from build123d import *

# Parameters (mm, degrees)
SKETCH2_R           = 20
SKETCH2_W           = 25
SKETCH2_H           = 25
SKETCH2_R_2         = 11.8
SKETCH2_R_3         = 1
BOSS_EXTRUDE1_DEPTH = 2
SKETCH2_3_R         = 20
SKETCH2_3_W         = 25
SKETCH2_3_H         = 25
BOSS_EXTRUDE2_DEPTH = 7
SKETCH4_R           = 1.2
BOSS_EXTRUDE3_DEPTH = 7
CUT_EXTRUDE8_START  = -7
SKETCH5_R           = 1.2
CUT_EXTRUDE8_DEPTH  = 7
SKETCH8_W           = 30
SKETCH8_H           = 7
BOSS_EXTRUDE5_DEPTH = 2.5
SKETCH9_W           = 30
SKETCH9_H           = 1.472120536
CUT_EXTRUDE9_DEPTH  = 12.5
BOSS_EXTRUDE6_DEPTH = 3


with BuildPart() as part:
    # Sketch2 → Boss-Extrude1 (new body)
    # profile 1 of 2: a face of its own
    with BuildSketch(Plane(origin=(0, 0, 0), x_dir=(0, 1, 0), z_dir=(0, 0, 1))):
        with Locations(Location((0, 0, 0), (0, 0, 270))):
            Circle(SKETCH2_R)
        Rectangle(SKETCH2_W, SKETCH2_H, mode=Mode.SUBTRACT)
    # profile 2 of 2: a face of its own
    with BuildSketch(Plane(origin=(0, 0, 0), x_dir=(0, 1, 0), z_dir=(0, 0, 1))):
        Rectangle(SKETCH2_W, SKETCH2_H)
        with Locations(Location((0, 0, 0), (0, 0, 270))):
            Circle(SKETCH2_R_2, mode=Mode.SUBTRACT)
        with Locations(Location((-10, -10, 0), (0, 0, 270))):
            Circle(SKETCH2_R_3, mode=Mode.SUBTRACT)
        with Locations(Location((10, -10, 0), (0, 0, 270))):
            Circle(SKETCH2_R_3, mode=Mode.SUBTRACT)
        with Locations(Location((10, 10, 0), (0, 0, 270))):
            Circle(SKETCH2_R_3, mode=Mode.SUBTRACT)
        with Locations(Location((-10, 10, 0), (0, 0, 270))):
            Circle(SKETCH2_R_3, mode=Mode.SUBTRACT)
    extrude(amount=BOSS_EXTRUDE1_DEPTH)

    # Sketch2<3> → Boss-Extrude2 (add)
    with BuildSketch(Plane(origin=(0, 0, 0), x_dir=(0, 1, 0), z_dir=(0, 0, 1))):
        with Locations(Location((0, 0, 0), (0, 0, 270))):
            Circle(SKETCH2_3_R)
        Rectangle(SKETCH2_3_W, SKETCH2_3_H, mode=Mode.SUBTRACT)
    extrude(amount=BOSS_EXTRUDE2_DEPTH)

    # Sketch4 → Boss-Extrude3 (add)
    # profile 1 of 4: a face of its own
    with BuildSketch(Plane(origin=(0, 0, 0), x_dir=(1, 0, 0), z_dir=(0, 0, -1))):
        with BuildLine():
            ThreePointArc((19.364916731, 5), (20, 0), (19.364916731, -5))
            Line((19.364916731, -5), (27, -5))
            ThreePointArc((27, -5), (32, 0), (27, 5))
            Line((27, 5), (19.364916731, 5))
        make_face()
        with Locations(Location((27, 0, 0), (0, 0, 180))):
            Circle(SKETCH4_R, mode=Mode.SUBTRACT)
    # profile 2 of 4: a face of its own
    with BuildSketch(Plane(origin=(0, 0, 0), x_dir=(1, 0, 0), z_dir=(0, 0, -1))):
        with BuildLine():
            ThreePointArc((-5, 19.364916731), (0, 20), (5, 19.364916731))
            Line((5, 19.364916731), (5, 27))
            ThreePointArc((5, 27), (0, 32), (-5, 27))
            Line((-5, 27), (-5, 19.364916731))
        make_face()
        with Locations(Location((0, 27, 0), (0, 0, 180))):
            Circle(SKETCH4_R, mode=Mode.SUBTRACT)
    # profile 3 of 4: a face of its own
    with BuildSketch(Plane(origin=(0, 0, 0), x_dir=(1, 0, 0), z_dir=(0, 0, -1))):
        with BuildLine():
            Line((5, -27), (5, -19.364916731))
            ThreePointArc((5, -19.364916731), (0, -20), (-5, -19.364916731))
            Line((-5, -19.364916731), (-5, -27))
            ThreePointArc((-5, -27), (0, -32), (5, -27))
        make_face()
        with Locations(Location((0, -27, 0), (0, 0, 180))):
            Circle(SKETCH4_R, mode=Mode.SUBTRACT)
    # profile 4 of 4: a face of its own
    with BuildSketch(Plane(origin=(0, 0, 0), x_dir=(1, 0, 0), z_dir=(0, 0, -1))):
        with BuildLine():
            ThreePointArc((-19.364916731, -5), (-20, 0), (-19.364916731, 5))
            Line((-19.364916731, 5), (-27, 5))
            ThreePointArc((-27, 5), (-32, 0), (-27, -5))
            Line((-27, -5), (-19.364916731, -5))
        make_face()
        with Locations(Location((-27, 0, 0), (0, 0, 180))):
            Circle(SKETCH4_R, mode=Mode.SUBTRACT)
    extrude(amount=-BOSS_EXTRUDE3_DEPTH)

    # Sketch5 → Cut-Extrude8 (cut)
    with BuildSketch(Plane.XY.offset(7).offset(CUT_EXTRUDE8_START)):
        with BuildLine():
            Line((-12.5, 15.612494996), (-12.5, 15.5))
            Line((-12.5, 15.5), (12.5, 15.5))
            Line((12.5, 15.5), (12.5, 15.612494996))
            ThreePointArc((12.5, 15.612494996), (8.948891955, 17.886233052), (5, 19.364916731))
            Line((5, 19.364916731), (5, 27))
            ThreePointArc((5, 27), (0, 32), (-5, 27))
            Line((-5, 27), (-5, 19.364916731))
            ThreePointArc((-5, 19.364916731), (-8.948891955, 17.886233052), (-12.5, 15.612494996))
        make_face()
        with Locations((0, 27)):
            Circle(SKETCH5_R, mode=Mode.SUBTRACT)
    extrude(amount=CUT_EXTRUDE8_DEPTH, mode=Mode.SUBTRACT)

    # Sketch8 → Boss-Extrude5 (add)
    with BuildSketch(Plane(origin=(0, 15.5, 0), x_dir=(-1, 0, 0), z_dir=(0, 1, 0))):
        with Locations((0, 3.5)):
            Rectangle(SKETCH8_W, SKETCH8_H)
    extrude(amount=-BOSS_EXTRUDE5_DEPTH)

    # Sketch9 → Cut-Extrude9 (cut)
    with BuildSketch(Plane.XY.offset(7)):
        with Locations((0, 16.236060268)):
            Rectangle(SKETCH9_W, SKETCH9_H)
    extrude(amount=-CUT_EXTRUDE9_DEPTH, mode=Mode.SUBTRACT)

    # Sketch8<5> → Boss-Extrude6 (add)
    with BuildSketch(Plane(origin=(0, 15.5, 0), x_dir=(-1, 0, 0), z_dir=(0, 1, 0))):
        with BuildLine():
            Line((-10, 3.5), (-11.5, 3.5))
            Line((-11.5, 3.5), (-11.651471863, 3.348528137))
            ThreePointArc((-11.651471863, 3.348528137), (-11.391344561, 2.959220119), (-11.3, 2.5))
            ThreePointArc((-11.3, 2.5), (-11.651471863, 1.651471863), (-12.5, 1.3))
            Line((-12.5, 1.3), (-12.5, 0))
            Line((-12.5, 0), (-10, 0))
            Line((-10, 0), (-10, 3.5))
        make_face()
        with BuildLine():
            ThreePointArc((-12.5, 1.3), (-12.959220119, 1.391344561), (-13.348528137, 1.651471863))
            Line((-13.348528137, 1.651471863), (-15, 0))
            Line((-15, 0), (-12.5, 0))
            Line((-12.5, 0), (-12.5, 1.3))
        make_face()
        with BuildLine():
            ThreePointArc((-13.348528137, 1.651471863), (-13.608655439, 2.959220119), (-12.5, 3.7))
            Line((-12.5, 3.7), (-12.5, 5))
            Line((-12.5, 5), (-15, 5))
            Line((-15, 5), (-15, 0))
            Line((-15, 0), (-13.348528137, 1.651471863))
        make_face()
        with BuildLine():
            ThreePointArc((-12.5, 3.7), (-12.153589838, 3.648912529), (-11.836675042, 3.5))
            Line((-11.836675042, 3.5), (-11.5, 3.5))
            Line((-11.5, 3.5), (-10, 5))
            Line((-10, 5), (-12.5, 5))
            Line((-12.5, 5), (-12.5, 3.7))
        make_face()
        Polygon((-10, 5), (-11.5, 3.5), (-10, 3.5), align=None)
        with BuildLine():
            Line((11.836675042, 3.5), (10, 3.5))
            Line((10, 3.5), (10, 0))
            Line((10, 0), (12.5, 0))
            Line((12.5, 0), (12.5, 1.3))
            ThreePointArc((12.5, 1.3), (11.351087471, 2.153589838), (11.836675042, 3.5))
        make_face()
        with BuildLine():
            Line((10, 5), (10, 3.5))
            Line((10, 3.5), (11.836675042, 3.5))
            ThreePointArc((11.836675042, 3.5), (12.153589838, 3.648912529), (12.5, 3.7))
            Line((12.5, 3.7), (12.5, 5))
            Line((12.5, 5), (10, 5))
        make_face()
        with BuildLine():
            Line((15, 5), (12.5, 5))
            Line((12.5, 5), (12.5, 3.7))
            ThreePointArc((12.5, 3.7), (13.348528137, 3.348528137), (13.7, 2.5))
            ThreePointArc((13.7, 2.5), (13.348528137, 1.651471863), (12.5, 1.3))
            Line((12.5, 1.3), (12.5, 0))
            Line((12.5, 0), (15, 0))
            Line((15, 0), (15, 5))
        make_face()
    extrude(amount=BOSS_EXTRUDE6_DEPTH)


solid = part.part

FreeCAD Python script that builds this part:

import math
import FreeCAD as App
import Part
import Sketcher
from FreeCAD import Vector
Q = App.Units.Quantity

doc = App.newDocument("Part")
body = doc.addObject("PartDesign::Body", "Body")

# Sketch on XY plane
sketch1 = body.newObject("Sketcher::SketchObject", "Sketch")
sketch1.AttachmentSupport = (doc.getObject("XY_Plane"), [""])
sketch1.MapMode = "FlatFace"
sketch1.addGeometry([
    Part.Circle(Vector(0, 0, 0), Vector(0, 0, 1), 20),  # 0
    Part.Circle(Vector(10, 10, 0), Vector(0, 0, 1), 1),  # 1
    Part.Circle(Vector(-10, 10, 0), Vector(0, 0, 1), 1),  # 2
    Part.Circle(Vector(-10, -10, 0), Vector(0, 0, 1), 1),  # 3
    Part.Circle(Vector(0, 0, 0), Vector(0, 0, 1), 11.8),  # 4
    Part.Circle(Vector(10, -10, 0), Vector(0, 0, 1), 1),  # 5
], False)
sketch1.addConstraint([
    Sketcher.Constraint("Coincident", 0, 3, -1, 1),
    Sketcher.Constraint("Coincident", 4, 3, -1, 1),
    Sketcher.Constraint("Equal", 1, 2),
    Sketcher.Constraint("Equal", 2, 3),
    Sketcher.Constraint("Equal", 3, 5),
    Sketcher.Constraint("Symmetric", 1, 3, 3, 3, -1, 1),
    Sketcher.Constraint("Symmetric", 2, 3, 5, 3, -1, 1),
    Sketcher.Constraint("Symmetric", 1, 3, 2, 3, -2),
    Sketcher.Constraint("Diameter", 0, 40.0),
    Sketcher.Constraint("Diameter", 1, 2.0),
    Sketcher.Constraint("Diameter", 4, 23.6),
    Sketcher.Constraint("DistanceX", -1, 1, 1, 3, 10.0),
    Sketcher.Constraint("DistanceY", -1, 1, 1, 3, 10.0),
])
pad1 = body.newObject("PartDesign::Pad", "Pad")
pad1.Profile = sketch1
pad1.Length = 2

# Sketch on XY plane
sketch2 = body.newObject("Sketcher::SketchObject", "Sketch001")
sketch2.AttachmentSupport = (doc.getObject("XY_Plane"), [""])
sketch2.MapMode = "FlatFace"
sketch2.addGeometry([
    Part.Circle(Vector(0, 0, 0), Vector(0, 0, 1), 20),  # 0
    Part.LineSegment(Vector(12.5, 12.5, 0), Vector(12.5, -12.5, 0)),  # 1
    Part.LineSegment(Vector(12.5, -12.5, 0), Vector(-12.5, -12.5, 0)),  # 2
    Part.LineSegment(Vector(-12.5, -12.5, 0), Vector(-12.5, 12.5, 0)),  # 3
    Part.LineSegment(Vector(-12.5, 12.5, 0), Vector(12.5, 12.5, 0)),  # 4
], False)
sketch2.addConstraint([
    Sketcher.Constraint("Coincident", 1, 2, 2, 1),
    Sketcher.Constraint("Coincident", 2, 2, 3, 1),
    Sketcher.Constraint("Coincident", 3, 2, 4, 1),
    Sketcher.Constraint("Coincident", 4, 2, 1, 1),
    Sketcher.Constraint("Vertical", 1),
    Sketcher.Constraint("Horizontal", 2),
    Sketcher.Constraint("Vertical", 3),
    Sketcher.Constraint("Horizontal", 4),
    Sketcher.Constraint("Coincident", 0, 3, -1, 1),
    Sketcher.Constraint("Symmetric", 1, 2, 3, 2, -1, 1),
    Sketcher.Constraint("Equal", 4, 1),
    Sketcher.Constraint("Diameter", 0, 40.0),
    Sketcher.Constraint("DistanceX", 2, 2, 2, 1, 25.0),
])
pad2 = body.newObject("PartDesign::Pad", "Pad001")
pad2.Profile = sketch2
pad2.Length = 7

# Sketch on XY plane
sketch3 = body.newObject("Sketcher::SketchObject", "Sketch002")
sketch3.AttachmentSupport = (doc.getObject("XY_Plane"), [""])
sketch3.MapMode = "FlatFace"
sketch3.addGeometry([
    Part.ArcOfCircle(Part.Circle(Vector(0, 0, 0), Vector(0, 0, 1), 20), math.radians(-14.477512), math.radians(14.477512)),  # 0
    Part.LineSegment(Vector(19.364917, 5, 0), Vector(27, 5, 0)),  # 1
    Part.ArcOfCircle(Part.Circle(Vector(27, 0, 0), Vector(0, 0, 1), 5), math.radians(-90), math.radians(90)),  # 2
    Part.LineSegment(Vector(27, -5, 0), Vector(19.364917, -5, 0)),  # 3
    Part.Circle(Vector(27, 0, 0), Vector(0, 0, 1), 1.2),  # 4
    Part.ArcOfCircle(Part.Circle(Vector(0, 0, 0), Vector(0, 0, 1), 20), math.radians(-104.477512), math.radians(-75.522488)),  # 5
    Part.LineSegment(Vector(5, -19.364917, 0), Vector(5, -27, 0)),  # 6
    Part.ArcOfCircle(Part.Circle(Vector(0, -27, 0), Vector(0, 0, 1), 5), math.radians(180), math.radians(360)),  # 7
    Part.LineSegment(Vector(-5, -27, 0), Vector(-5, -19.364917, 0)),  # 8
    Part.Circle(Vector(0, -27, 0), Vector(0, 0, 1), 1.2),  # 9
    Part.LineSegment(Vector(5, 27, 0), Vector(5, 19.364917, 0)),  # 10
    Part.ArcOfCircle(Part.Circle(Vector(0, 0, 0), Vector(0, 0, 1), 20), math.radians(75.522488), math.radians(104.477512)),  # 11
    Part.LineSegment(Vector(-5, 19.364917, 0), Vector(-5, 27, 0)),  # 12
    Part.ArcOfCircle(Part.Circle(Vector(0, 27, 0), Vector(0, 0, 1), 5), math.radians(0), math.radians(180)),  # 13
    Part.Circle(Vector(0, 27, 0), Vector(0, 0, 1), 1.2),  # 14
    Part.ArcOfCircle(Part.Circle(Vector(0, 0, 0), Vector(0, 0, 1), 20), math.radians(165.522488), math.radians(194.477512)),  # 15
    Part.LineSegment(Vector(-19.364917, -5, 0), Vector(-27, -5, 0)),  # 16
    Part.ArcOfCircle(Part.Circle(Vector(-27, 0, 0), Vector(0, 0, 1), 5), math.radians(90), math.radians(270)),  # 17
    Part.LineSegment(Vector(-27, 5, 0), Vector(-19.364917, 5, 0)),  # 18
    Part.Circle(Vector(-27, 0, 0), Vector(0, 0, 1), 1.2),  # 19
], False)
sketch3.addConstraint([
    Sketcher.Constraint("Coincident", 0, 2, 1, 1),
    Sketcher.Constraint("Tangent", 1, 2, 2, 2),
    Sketcher.Constraint("Tangent", 2, 1, 3, 1),
    Sketcher.Constraint("Coincident", 3, 2, 0, 1),
    Sketcher.Constraint("Coincident", 5, 2, 6, 1),
    Sketcher.Constraint("Tangent", 6, 2, 7, 2),
    Sketcher.Constraint("Tangent", 7, 1, 8, 1),
    Sketcher.Constraint("Coincident", 8, 2, 5, 1),
    Sketcher.Constraint("Coincident", 10, 2, 11, 1),
    Sketcher.Constraint("Coincident", 11, 2, 12, 1),
    Sketcher.Constraint("Tangent", 12, 2, 13, 2),
    Sketcher.Constraint("Tangent", 13, 1, 10, 1),
    Sketcher.Constraint("Coincident", 15, 2, 16, 1),
    Sketcher.Constraint("Tangent", 16, 2, 17, 2),
    Sketcher.Constraint("Tangent", 17, 1, 18, 1),
    Sketcher.Constraint("Coincident", 18, 2, 15, 1),
    Sketcher.Constraint("Horizontal", 1),
    Sketcher.Constraint("Horizontal", 3),
    Sketcher.Constraint("Vertical", 6),
    Sketcher.Constraint("Vertical", 8),
    Sketcher.Constraint("Vertical", 10),
    Sketcher.Constraint("Vertical", 12),
    Sketcher.Constraint("Horizontal", 16),
    Sketcher.Constraint("Horizontal", 18),
    Sketcher.Constraint("Coincident", 0, 3, -1, 1),
    Sketcher.Constraint("Coincident", 5, 3, -1, 1),
    Sketcher.Constraint("Coincident", 11, 3, -1, 1),
    Sketcher.Constraint("Coincident", 15, 3, -1, 1),
    Sketcher.Constraint("Coincident", 4, 3, 2, 3),
    Sketcher.Constraint("Coincident", 9, 3, 7, 3),
    Sketcher.Constraint("Coincident", 14, 3, 13, 3),
    Sketcher.Constraint("Coincident", 19, 3, 17, 3),
    Sketcher.Constraint("Equal", 0, 5),
    Sketcher.Constraint("Equal", 2, 7),
    Sketcher.Constraint("Equal", 4, 9),
    Sketcher.Constraint("Equal", 5, 11),
    Sketcher.Constraint("Equal", 7, 13),
    Sketcher.Constraint("Equal", 9, 14),
    Sketcher.Constraint("Equal", 11, 15),
    Sketcher.Constraint("Equal", 13, 17),
    Sketcher.Constraint("Equal", 14, 19),
    Sketcher.Constraint("Symmetric", 7, 3, 13, 3, -1, 1),
    Sketcher.Constraint("Symmetric", 2, 3, 17, 3, -1, 1),
    Sketcher.Constraint("PointOnObject", 2, 3, -1),
    Sketcher.Constraint("PointOnObject", 7, 3, -2),
    Sketcher.Constraint("Equal", 18, 6),
    Sketcher.Constraint("Radius", 0, 20.0),
    Sketcher.Constraint("Radius", 2, 5.0),
    Sketcher.Constraint("Diameter", 4, 2.4),
    Sketcher.Constraint("DistanceX", -1, 1, 2, 3, 27.0),
])
pad3 = body.newObject("PartDesign::Pad", "Pad002")
pad3.Profile = sketch3
pad3.Length = 7

# Sketch on XY plane
sketch4 = body.newObject("Sketcher::SketchObject", "Sketch003")
sketch4.AttachmentSupport = (doc.getObject("XY_Plane"), [""])
sketch4.MapMode = "FlatFace"
sketch4.addGeometry([
    Part.LineSegment(Vector(-12.5, 15.612495, 0), Vector(-12.5, 15.5, 0)),  # 0
    Part.LineSegment(Vector(-12.5, 15.5, 0), Vector(12.5, 15.5, 0)),  # 1
    Part.LineSegment(Vector(12.5, 15.5, 0), Vector(12.5, 15.612495, 0)),  # 2
    Part.ArcOfCircle(Part.Circle(Vector(0, 0, 0), Vector(0, 0, 1), 20), math.radians(51.317813), math.radians(75.522488)),  # 3
    Part.LineSegment(Vector(5, 19.364917, 0), Vector(5, 27, 0)),  # 4
    Part.ArcOfCircle(Part.Circle(Vector(0, 27, 0), Vector(0, 0, 1), 5), math.radians(0), math.radians(180)),  # 5
    Part.LineSegment(Vector(-5, 27, 0), Vector(-5, 19.364917, 0)),  # 6
    Part.ArcOfCircle(Part.Circle(Vector(0, 0, 0), Vector(0, 0, 1), 20), math.radians(104.477512), math.radians(128.682187)),  # 7
    Part.Circle(Vector(0, 27, 0), Vector(0, 0, 1), 1.2),  # 8
], False)
sketch4.addConstraint([
    Sketcher.Constraint("Coincident", 0, 2, 1, 1),
    Sketcher.Constraint("Coincident", 1, 2, 2, 1),
    Sketcher.Constraint("Coincident", 2, 2, 3, 1),
    Sketcher.Constraint("Coincident", 3, 2, 4, 1),
    Sketcher.Constraint("Tangent", 4, 2, 5, 1),
    Sketcher.Constraint("Tangent", 5, 2, 6, 1),
    Sketcher.Constraint("Coincident", 6, 2, 7, 1),
    Sketcher.Constraint("Coincident", 7, 2, 0, 1),
    Sketcher.Constraint("Vertical", 0),
    Sketcher.Constraint("Horizontal", 1),
    Sketcher.Constraint("Vertical", 2),
    Sketcher.Constraint("Vertical", 4),
    Sketcher.Constraint("Vertical", 6),
    Sketcher.Constraint("Coincident", 3, 3, -1, 1),
    Sketcher.Constraint("Coincident", 7, 3, -1, 1),
    Sketcher.Constraint("Coincident", 8, 3, 5, 3),
    Sketcher.Constraint("Equal", 3, 7),
    Sketcher.Constraint("PointOnObject", 5, 3, -2),
    Sketcher.Constraint("Horizontal", 2, 2, 7, 2),
    Sketcher.Constraint("Radius", 3, 20.0),
    Sketcher.Constraint("Radius", 5, 5.0),
    Sketcher.Constraint("Diameter", 8, 2.4),
    Sketcher.Constraint("DistanceX", 1, 1, 1, 2, 25.0),
    Sketcher.Constraint("DistanceY", -1, 1, 5, 3, 27.0),
    Sketcher.Constraint("DistanceY", -1, 1, 0, 2, 15.5),
])
pocket1 = body.newObject("PartDesign::Pocket", "Pocket")
pocket1.Profile = sketch4
pocket1.Length = 7
pocket1.Reversed = True

# Sketch on XZ plane
sketch5 = body.newObject("Sketcher::SketchObject", "Sketch004")
sketch5.AttachmentSupport = (doc.getObject("XZ_Plane"), [""])
sketch5.MapMode = "FlatFace"
sketch5.AttachmentOffset = App.Placement(Vector(0, 0, -15.5), App.Rotation())
sketch5.addGeometry([
    Part.LineSegment(Vector(15, 7, 0), Vector(15, 0, 0)),
    Part.LineSegment(Vector(15, 0, 0), Vector(-15, 0, 0)),
    Part.LineSegment(Vector(-15, 0, 0), Vector(-15, 7, 0)),
    Part.LineSegment(Vector(-15, 7, 0), Vector(15, 7, 0)),
], False)
sketch5.addConstraint([
    Sketcher.Constraint("Coincident", 0, 2, 1, 1),
    Sketcher.Constraint("Coincident", 1, 2, 2, 1),
    Sketcher.Constraint("Coincident", 2, 2, 3, 1),
    Sketcher.Constraint("Coincident", 3, 2, 0, 1),
    Sketcher.Constraint("Vertical", 0),
    Sketcher.Constraint("Horizontal", 1),
    Sketcher.Constraint("Vertical", 2),
    Sketcher.Constraint("Horizontal", 3),
    Sketcher.Constraint("Symmetric", 0, 2, 1, 2, -1, 1),
    Sketcher.Constraint("DistanceX", 1, 2, 1, 1, 30.0),
    Sketcher.Constraint("DistanceY", 0, 2, 0, 1, 7.0),
])
pad4 = body.newObject("PartDesign::Pad", "Pad003")
pad4.Profile = sketch5
pad4.Length = 2.5

# Sketch on XY plane
sketch6 = body.newObject("Sketcher::SketchObject", "Sketch005")
sketch6.AttachmentSupport = (doc.getObject("XY_Plane"), [""])
sketch6.MapMode = "FlatFace"
sketch6.AttachmentOffset = App.Placement(Vector(0, 0, 7), App.Rotation())
sketch6.addGeometry([
    Part.LineSegment(Vector(-15, 16.972121, 0), Vector(-15, 15.5, 0)),
    Part.LineSegment(Vector(-15, 15.5, 0), Vector(15, 15.5, 0)),
    Part.LineSegment(Vector(15, 15.5, 0), Vector(15, 16.972121, 0)),
    Part.LineSegment(Vector(15, 16.972121, 0), Vector(-15, 16.972121, 0)),
], False)
sketch6.addConstraint([
    Sketcher.Constraint("Coincident", 0, 2, 1, 1),
    Sketcher.Constraint("Coincident", 1, 2, 2, 1),
    Sketcher.Constraint("Coincident", 2, 2, 3, 1),
    Sketcher.Constraint("Coincident", 3, 2, 0, 1),
    Sketcher.Constraint("Vertical", 0),
    Sketcher.Constraint("Horizontal", 1),
    Sketcher.Constraint("Vertical", 2),
    Sketcher.Constraint("Horizontal", 3),
    Sketcher.Constraint("DistanceX", 1, 1, 1, 2, 30.0),
    Sketcher.Constraint("DistanceX", 0, 2, -1, 1, 15.0),
    Sketcher.Constraint("DistanceY", -1, 1, 0, 2, 15.5),
    Sketcher.Constraint("DistanceY", 0, 2, 0, 1, 1.472121),
])
pocket2 = body.newObject("PartDesign::Pocket", "Pocket001")
pocket2.Profile = sketch6
pocket2.Length = 12.5

# Sketch on XZ plane
sketch7 = body.newObject("Sketcher::SketchObject", "Sketch006")
sketch7.AttachmentSupport = (doc.getObject("XZ_Plane"), [""])
sketch7.MapMode = "FlatFace"
sketch7.AttachmentOffset = App.Placement(Vector(0, 0, -15.5), App.Rotation())
sketch7.addGeometry([
    Part.LineSegment(Vector(10, 0, 0), Vector(10, 5, 0)),  # 0
    Part.LineSegment(Vector(10, 5, 0), Vector(15, 5, 0)),  # 1
    Part.LineSegment(Vector(15, 5, 0), Vector(15, 0, 0)),  # 2
    Part.LineSegment(Vector(15, 0, 0), Vector(10, 0, 0)),  # 3
    Part.LineSegment(Vector(11.836675, 3.5, 0), Vector(11.5, 3.5, 0)),  # 4
    Part.LineSegment(Vector(11.5, 3.5, 0), Vector(11.651472, 3.348528, 0)),  # 5
    Part.ArcOfCircle(Part.Circle(Vector(12.5, 2.5, 0), Vector(0, 0, 1), 1.2), math.radians(135), math.radians(180)),  # 6
    Part.ArcOfCircle(Part.Circle(Vector(12.5, 2.5, 0), Vector(0, 0, 1), 1.2), math.radians(-180), math.radians(-90)),  # 7
    Part.ArcOfCircle(Part.Circle(Vector(12.5, 2.5, 0), Vector(0, 0, 1), 1.2), math.radians(-90), math.radians(-45)),  # 8
    Part.ArcOfCircle(Part.Circle(Vector(12.5, 2.5, 0), Vector(0, 0, 1), 1.2), math.radians(-45), math.radians(90)),  # 9
    Part.ArcOfCircle(Part.Circle(Vector(12.5, 2.5, 0), Vector(0, 0, 1), 1.2), math.radians(90), math.radians(123.55731)),  # 10
    Part.LineSegment(Vector(-10, 0, 0), Vector(-15, 0, 0)),  # 11
    Part.LineSegment(Vector(-15, 0, 0), Vector(-15, 5, 0)),  # 12
    Part.LineSegment(Vector(-15, 5, 0), Vector(-10, 5, 0)),  # 13
    Part.LineSegment(Vector(-10, 5, 0), Vector(-10, 0, 0)),  # 14
    Part.ArcOfCircle(Part.Circle(Vector(-12.5, 2.5, 0), Vector(0, 0, 1), 1.2), math.radians(-90), math.radians(56.44269)),  # 15
    Part.ArcOfCircle(Part.Circle(Vector(-12.5, 2.5, 0), Vector(0, 0, 1), 1.2), math.radians(56.44269), math.radians(90)),  # 16
    Part.ArcOfCircle(Part.Circle(Vector(-12.5, 2.5, 0), Vector(0, 0, 1), 1.2), math.radians(90), math.radians(180)),  # 17
    Part.ArcOfCircle(Part.Circle(Vector(-12.5, 2.5, 0), Vector(0, 0, 1), 1.2), math.radians(-180), math.radians(-90)),  # 18
], False)
sketch7.addConstraint([
    Sketcher.Constraint("Coincident", 0, 2, 1, 1),
    Sketcher.Constraint("Coincident", 1, 2, 2, 1),
    Sketcher.Constraint("Coincident", 2, 2, 3, 1),
    Sketcher.Constraint("Coincident", 3, 2, 0, 1),
    Sketcher.Constraint("Coincident", 4, 2, 5, 1),
    Sketcher.Constraint("Coincident", 5, 2, 6, 1),
    Sketcher.Constraint("Tangent", 6, 2, 7, 1),
    Sketcher.Constraint("Tangent", 7, 2, 8, 1),
    Sketcher.Constraint("Tangent", 8, 2, 9, 1),
    Sketcher.Constraint("Tangent", 9, 2, 10, 1),
    Sketcher.Constraint("Coincident", 10, 2, 4, 1),
    Sketcher.Constraint("Coincident", 11, 2, 12, 1),
    Sketcher.Constraint("Coincident", 12, 2, 13, 1),
    Sketcher.Constraint("Coincident", 13, 2, 14, 1),
    Sketcher.Constraint("Coincident", 14, 2, 11, 1),
    Sketcher.Constraint("Tangent", 15, 2, 16, 1),
    Sketcher.Constraint("Tangent", 16, 2, 17, 1),
    Sketcher.Constraint("Tangent", 17, 2, 18, 1),
    Sketcher.Constraint("Tangent", 18, 2, 15, 1),
    Sketcher.Constraint("Vertical", 0),
    Sketcher.Constraint("Horizontal", 1),
    Sketcher.Constraint("Vertical", 2),
    Sketcher.Constraint("Horizontal", 3),
    Sketcher.Constraint("Horizontal", 4),
    Sketcher.Constraint("Horizontal", 11),
    Sketcher.Constraint("Vertical", 12),
    Sketcher.Constraint("Horizontal", 13),
    Sketcher.Constraint("Vertical", 14),
    Sketcher.Constraint("Coincident", 8, 3, 6, 3),
    Sketcher.Constraint("Coincident", 10, 3, 6, 3),
    Sketcher.Constraint("Equal", 10, 15),
    Sketcher.Constraint("Equal", 15, 16),
    Sketcher.Constraint("Symmetric", 2, 2, 11, 2, -1, 1),
    Sketcher.Constraint("Symmetric", 6, 3, 15, 3, -2),
    Sketcher.Constraint("Symmetric", 0, 2, 13, 2, -2),
    Sketcher.Constraint("PointOnObject", 2, 2, -1),
    Sketcher.Constraint("Horizontal", 18, 3, 6, 2),
    Sketcher.Constraint("Horizontal", 10, 2, 15, 2),
    Sketcher.Constraint("Horizontal", 6, 2, 17, 2),
    Sketcher.Constraint("Vertical", 10, 3, 7, 2),
    Sketcher.Constraint("Vertical", 7, 2, 9, 2),
    Sketcher.Constraint("Vertical", 18, 3, 16, 2),
    Sketcher.Constraint("Vertical", 16, 2, 18, 2),
    Sketcher.Constraint("Equal", 13, 0),
    Sketcher.Constraint("Radius", 6, 1.2),
    Sketcher.Constraint("DistanceX", 1, 1, 1, 2, 5.0),
    Sketcher.Constraint("Angle", 5, Q("-45 deg")),
    Sketcher.Constraint("DistanceX", -1, 1, 0, 2, 10.0),
    Sketcher.Constraint("DistanceX", 15, 3, 6, 3, 25.0),
    Sketcher.Constraint("DistanceX", 4, 2, 6, 3, 1.0),
    Sketcher.Constraint("DistanceY", 6, 3, 4, 2, 1.0),
    Sketcher.Constraint("DistanceY", -1, 1, 6, 3, 2.5),
    Sketcher.Constraint("DistanceX", -1, 1, 8, 2, 13.348528),
])
pad5 = body.newObject("PartDesign::Pad", "Pad004")
pad5.Profile = sketch7
pad5.Length = 3
pad5.Reversed = True

doc.recompute()
